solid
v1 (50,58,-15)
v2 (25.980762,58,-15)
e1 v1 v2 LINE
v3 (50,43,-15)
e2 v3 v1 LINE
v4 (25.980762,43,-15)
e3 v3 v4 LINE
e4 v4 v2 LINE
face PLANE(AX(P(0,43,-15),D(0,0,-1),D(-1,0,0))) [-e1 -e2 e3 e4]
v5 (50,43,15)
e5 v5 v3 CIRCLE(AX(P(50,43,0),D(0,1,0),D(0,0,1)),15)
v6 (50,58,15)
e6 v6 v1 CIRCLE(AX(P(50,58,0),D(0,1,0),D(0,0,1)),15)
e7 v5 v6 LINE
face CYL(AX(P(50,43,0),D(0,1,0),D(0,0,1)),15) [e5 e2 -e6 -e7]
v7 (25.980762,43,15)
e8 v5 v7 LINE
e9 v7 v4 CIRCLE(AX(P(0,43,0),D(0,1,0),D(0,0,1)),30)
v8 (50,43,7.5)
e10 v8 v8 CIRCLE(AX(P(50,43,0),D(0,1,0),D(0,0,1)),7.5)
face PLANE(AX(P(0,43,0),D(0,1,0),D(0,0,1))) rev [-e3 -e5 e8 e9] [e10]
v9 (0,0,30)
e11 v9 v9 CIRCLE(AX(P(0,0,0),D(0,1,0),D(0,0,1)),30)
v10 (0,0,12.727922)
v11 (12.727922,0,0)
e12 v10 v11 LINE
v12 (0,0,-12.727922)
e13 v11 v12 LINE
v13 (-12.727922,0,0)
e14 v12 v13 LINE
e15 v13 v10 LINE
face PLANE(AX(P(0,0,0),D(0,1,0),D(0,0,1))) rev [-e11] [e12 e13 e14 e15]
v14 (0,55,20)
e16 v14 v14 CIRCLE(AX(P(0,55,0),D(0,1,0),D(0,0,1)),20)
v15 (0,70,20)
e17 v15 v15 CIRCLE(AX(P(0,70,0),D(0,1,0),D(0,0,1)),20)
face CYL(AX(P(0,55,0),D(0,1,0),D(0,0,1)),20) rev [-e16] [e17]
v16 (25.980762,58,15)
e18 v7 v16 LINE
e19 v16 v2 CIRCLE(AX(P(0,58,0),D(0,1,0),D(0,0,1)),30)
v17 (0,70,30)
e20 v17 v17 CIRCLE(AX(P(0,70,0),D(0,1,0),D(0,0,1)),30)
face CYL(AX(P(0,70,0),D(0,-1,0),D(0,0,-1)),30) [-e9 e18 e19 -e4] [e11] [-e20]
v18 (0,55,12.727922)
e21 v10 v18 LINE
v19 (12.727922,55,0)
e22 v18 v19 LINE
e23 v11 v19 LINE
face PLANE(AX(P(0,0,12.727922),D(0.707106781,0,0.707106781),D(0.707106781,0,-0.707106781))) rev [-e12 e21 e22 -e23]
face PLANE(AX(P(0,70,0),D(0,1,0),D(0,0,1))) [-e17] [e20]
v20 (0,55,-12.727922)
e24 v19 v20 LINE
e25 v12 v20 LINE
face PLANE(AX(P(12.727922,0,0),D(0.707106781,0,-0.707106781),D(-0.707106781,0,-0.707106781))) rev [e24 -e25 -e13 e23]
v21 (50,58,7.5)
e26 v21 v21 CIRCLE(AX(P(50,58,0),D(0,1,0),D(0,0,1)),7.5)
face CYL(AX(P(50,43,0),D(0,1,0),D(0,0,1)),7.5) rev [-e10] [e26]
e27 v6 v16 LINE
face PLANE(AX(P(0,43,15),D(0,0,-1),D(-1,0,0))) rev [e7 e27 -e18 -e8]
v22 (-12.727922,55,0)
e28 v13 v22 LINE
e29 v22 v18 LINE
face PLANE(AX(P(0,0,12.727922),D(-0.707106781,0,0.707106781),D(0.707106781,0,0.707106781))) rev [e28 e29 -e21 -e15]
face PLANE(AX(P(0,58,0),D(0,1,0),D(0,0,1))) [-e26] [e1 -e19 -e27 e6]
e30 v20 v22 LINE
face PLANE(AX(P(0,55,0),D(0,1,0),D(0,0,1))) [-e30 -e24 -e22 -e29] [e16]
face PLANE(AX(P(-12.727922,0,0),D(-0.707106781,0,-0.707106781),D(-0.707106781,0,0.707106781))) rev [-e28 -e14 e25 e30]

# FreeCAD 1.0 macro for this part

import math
import FreeCAD as App
import Part
import Sketcher


def add_polygon(sketch, points):
    """Adds a closed chain of lines whose ends are joined by coincident constraints."""
    first, n = sketch.GeometryCount, len(points)
    for a, b in zip(points, points[1:] + points[:1]):
        sketch.addGeometry(Part.LineSegment(App.Vector(*a, 0), App.Vector(*b, 0)), False)
    for i in range(n):
        sketch.addConstraint(Sketcher.Constraint("Coincident", first + i, 2, first + (i + 1) % n, 1))

doc = App.newDocument("Part")
body = doc.addObject("PartDesign::Body", "Body")

sketch1 = body.newObject("Sketcher::SketchObject", "Sketch")
sketch1.AttachmentSupport = (doc.getObject("XZ_Plane"), [""])
sketch1.MapMode = "FlatFace"
sketch1.addGeometry(Part.Circle(App.Vector(0, 0, 0), App.Vector(0, 0, 1), 30), False)
sketch1.addConstraint(Sketcher.Constraint("Coincident", 0, 3, -1, 1))
sketch1.addConstraint(Sketcher.Constraint("Diameter", 0, 60.0))
pad1 = body.newObject("PartDesign::Pad", "Pad")
pad1.Profile = sketch1
pad1.Length = 70
pad1.Reversed = True

sketch2 = body.newObject("Sketcher::SketchObject", "Sketch001")
sketch2.AttachmentSupport = (doc.getObject("XZ_Plane"), [""])
sketch2.MapMode = "FlatFace"
sketch2.AttachmentOffset = App.Placement(App.Vector(0, 0, -43), App.Rotation())
sketch2.addGeometry(Part.ArcOfCircle(Part.Circle(App.Vector(0, 0, 0), App.Vector(0, 0, 1), 30), math.radians(-30), math.radians(30)), False)
sketch2.addGeometry(Part.LineSegment(App.Vector(26, 15, 0), App.Vector(50, 15, 0)), False)
sketch2.addGeometry(Part.ArcOfCircle(Part.Circle(App.Vector(50, 0, 0), App.Vector(0, 0, 1), 15), math.radians(-90), math.radians(90)), False)
sketch2.addGeometry(Part.LineSegment(App.Vector(50, -15, 0), App.Vector(26, -15, 0)), False)
sketch2.addGeometry(Part.Circle(App.Vector(50, 0, 0), App.Vector(0, 0, 1), 8), False)
sketch2.addConstraint(Sketcher.Constraint("Coincident", 0, 2, 1, 1))
sketch2.addConstraint(Sketcher.Constraint("Tangent", 1, 2, 2, 2))
sketch2.addConstraint(Sketcher.Constraint("Tangent", 2, 1, 3, 1))
sketch2.addConstraint(Sketcher.Constraint("Coincident", 3, 2, 0, 1))
sketch2.addConstraint(Sketcher.Constraint("Horizontal", 1))
sketch2.addConstraint(Sketcher.Constraint("Horizontal", 3))
sketch2.addConstraint(Sketcher.Constraint("Coincident", 0, 3, -1, 1))
sketch2.addConstraint(Sketcher.Constraint("Coincident", 4, 3, 2, 3))
sketch2.addConstraint(Sketcher.Constraint("PointOnObject", 2, 3, -1))
sketch2.addConstraint(Sketcher.Constraint("Diameter", 4, 15.0))
sketch2.addConstraint(Sketcher.Constraint("Radius", 0, 30.0))
sketch2.addConstraint(Sketcher.Constraint("Radius", 2, 15.0))
sketch2.addConstraint(Sketcher.Constraint("DistanceX", -1, 1, 2, 3, 50.0))
pad2 = body.newObject("PartDesign::Pad", "Pad001")
pad2.Profile = sketch2
pad2.Length = 15
pad2.Reversed = True

sketch3 = body.newObject("Sketcher::SketchObject", "Sketch002")
sketch3.AttachmentSupport = (doc.getObject("XZ_Plane"), [""])
sketch3.MapMode = "FlatFace"
sketch3.AttachmentOffset = App.Placement(App.Vector(0, 0, -70), App.Rotation())
sketch3.addGeometry(Part.Circle(App.Vector(0, 0, 0), App.Vector(0, 0, 1), 20), False)
sketch3.addConstraint(Sketcher.Constraint("Coincident", 0, 3, -1, 1))
sketch3.addConstraint(Sketcher.Constraint("Diameter", 0, 40.0))
pocket1 = body.newObject("PartDesign::Pocket", "Pocket")
pocket1.Profile = sketch3
pocket1.Length = 15
pocket1.Reversed = True

sketch4 = body.newObject("Sketcher::SketchObject", "Sketch003")
sketch4.AttachmentSupport = (doc.getObject("XZ_Plane"), [""])
sketch4.MapMode = "FlatFace"
sketch4.AttachmentOffset = App.Placement(App.Vector(0, 0, -55), App.Rotation())
add_polygon(sketch4, [(-13, 0), (0, 13), (13, 0), (0, -13)])
sketch4.addConstraint(Sketcher.Constraint("Symmetric", 0, 2, 2, 2, -1, 1))
sketch4.addConstraint(Sketcher.Constraint("Symmetric", 1, 2, 3, 2, -1, 1))
sketch4.addConstraint(Sketcher.Constraint("PointOnObject", 0, 2, -2))
sketch4.addConstraint(Sketcher.Constraint("PointOnObject", 1, 2, -1))
sketch4.addConstraint(Sketcher.Constraint("Perpendicular", 0, 1))
sketch4.addConstraint(Sketcher.Constraint("Distance", 0, 18.0))
pocket2 = body.newObject("PartDesign::Pocket", "Pocket001")
pocket2.Profile = sketch4
pocket2.Type = "ThroughAll"
pocket2.Reversed = True

doc.recompute()
